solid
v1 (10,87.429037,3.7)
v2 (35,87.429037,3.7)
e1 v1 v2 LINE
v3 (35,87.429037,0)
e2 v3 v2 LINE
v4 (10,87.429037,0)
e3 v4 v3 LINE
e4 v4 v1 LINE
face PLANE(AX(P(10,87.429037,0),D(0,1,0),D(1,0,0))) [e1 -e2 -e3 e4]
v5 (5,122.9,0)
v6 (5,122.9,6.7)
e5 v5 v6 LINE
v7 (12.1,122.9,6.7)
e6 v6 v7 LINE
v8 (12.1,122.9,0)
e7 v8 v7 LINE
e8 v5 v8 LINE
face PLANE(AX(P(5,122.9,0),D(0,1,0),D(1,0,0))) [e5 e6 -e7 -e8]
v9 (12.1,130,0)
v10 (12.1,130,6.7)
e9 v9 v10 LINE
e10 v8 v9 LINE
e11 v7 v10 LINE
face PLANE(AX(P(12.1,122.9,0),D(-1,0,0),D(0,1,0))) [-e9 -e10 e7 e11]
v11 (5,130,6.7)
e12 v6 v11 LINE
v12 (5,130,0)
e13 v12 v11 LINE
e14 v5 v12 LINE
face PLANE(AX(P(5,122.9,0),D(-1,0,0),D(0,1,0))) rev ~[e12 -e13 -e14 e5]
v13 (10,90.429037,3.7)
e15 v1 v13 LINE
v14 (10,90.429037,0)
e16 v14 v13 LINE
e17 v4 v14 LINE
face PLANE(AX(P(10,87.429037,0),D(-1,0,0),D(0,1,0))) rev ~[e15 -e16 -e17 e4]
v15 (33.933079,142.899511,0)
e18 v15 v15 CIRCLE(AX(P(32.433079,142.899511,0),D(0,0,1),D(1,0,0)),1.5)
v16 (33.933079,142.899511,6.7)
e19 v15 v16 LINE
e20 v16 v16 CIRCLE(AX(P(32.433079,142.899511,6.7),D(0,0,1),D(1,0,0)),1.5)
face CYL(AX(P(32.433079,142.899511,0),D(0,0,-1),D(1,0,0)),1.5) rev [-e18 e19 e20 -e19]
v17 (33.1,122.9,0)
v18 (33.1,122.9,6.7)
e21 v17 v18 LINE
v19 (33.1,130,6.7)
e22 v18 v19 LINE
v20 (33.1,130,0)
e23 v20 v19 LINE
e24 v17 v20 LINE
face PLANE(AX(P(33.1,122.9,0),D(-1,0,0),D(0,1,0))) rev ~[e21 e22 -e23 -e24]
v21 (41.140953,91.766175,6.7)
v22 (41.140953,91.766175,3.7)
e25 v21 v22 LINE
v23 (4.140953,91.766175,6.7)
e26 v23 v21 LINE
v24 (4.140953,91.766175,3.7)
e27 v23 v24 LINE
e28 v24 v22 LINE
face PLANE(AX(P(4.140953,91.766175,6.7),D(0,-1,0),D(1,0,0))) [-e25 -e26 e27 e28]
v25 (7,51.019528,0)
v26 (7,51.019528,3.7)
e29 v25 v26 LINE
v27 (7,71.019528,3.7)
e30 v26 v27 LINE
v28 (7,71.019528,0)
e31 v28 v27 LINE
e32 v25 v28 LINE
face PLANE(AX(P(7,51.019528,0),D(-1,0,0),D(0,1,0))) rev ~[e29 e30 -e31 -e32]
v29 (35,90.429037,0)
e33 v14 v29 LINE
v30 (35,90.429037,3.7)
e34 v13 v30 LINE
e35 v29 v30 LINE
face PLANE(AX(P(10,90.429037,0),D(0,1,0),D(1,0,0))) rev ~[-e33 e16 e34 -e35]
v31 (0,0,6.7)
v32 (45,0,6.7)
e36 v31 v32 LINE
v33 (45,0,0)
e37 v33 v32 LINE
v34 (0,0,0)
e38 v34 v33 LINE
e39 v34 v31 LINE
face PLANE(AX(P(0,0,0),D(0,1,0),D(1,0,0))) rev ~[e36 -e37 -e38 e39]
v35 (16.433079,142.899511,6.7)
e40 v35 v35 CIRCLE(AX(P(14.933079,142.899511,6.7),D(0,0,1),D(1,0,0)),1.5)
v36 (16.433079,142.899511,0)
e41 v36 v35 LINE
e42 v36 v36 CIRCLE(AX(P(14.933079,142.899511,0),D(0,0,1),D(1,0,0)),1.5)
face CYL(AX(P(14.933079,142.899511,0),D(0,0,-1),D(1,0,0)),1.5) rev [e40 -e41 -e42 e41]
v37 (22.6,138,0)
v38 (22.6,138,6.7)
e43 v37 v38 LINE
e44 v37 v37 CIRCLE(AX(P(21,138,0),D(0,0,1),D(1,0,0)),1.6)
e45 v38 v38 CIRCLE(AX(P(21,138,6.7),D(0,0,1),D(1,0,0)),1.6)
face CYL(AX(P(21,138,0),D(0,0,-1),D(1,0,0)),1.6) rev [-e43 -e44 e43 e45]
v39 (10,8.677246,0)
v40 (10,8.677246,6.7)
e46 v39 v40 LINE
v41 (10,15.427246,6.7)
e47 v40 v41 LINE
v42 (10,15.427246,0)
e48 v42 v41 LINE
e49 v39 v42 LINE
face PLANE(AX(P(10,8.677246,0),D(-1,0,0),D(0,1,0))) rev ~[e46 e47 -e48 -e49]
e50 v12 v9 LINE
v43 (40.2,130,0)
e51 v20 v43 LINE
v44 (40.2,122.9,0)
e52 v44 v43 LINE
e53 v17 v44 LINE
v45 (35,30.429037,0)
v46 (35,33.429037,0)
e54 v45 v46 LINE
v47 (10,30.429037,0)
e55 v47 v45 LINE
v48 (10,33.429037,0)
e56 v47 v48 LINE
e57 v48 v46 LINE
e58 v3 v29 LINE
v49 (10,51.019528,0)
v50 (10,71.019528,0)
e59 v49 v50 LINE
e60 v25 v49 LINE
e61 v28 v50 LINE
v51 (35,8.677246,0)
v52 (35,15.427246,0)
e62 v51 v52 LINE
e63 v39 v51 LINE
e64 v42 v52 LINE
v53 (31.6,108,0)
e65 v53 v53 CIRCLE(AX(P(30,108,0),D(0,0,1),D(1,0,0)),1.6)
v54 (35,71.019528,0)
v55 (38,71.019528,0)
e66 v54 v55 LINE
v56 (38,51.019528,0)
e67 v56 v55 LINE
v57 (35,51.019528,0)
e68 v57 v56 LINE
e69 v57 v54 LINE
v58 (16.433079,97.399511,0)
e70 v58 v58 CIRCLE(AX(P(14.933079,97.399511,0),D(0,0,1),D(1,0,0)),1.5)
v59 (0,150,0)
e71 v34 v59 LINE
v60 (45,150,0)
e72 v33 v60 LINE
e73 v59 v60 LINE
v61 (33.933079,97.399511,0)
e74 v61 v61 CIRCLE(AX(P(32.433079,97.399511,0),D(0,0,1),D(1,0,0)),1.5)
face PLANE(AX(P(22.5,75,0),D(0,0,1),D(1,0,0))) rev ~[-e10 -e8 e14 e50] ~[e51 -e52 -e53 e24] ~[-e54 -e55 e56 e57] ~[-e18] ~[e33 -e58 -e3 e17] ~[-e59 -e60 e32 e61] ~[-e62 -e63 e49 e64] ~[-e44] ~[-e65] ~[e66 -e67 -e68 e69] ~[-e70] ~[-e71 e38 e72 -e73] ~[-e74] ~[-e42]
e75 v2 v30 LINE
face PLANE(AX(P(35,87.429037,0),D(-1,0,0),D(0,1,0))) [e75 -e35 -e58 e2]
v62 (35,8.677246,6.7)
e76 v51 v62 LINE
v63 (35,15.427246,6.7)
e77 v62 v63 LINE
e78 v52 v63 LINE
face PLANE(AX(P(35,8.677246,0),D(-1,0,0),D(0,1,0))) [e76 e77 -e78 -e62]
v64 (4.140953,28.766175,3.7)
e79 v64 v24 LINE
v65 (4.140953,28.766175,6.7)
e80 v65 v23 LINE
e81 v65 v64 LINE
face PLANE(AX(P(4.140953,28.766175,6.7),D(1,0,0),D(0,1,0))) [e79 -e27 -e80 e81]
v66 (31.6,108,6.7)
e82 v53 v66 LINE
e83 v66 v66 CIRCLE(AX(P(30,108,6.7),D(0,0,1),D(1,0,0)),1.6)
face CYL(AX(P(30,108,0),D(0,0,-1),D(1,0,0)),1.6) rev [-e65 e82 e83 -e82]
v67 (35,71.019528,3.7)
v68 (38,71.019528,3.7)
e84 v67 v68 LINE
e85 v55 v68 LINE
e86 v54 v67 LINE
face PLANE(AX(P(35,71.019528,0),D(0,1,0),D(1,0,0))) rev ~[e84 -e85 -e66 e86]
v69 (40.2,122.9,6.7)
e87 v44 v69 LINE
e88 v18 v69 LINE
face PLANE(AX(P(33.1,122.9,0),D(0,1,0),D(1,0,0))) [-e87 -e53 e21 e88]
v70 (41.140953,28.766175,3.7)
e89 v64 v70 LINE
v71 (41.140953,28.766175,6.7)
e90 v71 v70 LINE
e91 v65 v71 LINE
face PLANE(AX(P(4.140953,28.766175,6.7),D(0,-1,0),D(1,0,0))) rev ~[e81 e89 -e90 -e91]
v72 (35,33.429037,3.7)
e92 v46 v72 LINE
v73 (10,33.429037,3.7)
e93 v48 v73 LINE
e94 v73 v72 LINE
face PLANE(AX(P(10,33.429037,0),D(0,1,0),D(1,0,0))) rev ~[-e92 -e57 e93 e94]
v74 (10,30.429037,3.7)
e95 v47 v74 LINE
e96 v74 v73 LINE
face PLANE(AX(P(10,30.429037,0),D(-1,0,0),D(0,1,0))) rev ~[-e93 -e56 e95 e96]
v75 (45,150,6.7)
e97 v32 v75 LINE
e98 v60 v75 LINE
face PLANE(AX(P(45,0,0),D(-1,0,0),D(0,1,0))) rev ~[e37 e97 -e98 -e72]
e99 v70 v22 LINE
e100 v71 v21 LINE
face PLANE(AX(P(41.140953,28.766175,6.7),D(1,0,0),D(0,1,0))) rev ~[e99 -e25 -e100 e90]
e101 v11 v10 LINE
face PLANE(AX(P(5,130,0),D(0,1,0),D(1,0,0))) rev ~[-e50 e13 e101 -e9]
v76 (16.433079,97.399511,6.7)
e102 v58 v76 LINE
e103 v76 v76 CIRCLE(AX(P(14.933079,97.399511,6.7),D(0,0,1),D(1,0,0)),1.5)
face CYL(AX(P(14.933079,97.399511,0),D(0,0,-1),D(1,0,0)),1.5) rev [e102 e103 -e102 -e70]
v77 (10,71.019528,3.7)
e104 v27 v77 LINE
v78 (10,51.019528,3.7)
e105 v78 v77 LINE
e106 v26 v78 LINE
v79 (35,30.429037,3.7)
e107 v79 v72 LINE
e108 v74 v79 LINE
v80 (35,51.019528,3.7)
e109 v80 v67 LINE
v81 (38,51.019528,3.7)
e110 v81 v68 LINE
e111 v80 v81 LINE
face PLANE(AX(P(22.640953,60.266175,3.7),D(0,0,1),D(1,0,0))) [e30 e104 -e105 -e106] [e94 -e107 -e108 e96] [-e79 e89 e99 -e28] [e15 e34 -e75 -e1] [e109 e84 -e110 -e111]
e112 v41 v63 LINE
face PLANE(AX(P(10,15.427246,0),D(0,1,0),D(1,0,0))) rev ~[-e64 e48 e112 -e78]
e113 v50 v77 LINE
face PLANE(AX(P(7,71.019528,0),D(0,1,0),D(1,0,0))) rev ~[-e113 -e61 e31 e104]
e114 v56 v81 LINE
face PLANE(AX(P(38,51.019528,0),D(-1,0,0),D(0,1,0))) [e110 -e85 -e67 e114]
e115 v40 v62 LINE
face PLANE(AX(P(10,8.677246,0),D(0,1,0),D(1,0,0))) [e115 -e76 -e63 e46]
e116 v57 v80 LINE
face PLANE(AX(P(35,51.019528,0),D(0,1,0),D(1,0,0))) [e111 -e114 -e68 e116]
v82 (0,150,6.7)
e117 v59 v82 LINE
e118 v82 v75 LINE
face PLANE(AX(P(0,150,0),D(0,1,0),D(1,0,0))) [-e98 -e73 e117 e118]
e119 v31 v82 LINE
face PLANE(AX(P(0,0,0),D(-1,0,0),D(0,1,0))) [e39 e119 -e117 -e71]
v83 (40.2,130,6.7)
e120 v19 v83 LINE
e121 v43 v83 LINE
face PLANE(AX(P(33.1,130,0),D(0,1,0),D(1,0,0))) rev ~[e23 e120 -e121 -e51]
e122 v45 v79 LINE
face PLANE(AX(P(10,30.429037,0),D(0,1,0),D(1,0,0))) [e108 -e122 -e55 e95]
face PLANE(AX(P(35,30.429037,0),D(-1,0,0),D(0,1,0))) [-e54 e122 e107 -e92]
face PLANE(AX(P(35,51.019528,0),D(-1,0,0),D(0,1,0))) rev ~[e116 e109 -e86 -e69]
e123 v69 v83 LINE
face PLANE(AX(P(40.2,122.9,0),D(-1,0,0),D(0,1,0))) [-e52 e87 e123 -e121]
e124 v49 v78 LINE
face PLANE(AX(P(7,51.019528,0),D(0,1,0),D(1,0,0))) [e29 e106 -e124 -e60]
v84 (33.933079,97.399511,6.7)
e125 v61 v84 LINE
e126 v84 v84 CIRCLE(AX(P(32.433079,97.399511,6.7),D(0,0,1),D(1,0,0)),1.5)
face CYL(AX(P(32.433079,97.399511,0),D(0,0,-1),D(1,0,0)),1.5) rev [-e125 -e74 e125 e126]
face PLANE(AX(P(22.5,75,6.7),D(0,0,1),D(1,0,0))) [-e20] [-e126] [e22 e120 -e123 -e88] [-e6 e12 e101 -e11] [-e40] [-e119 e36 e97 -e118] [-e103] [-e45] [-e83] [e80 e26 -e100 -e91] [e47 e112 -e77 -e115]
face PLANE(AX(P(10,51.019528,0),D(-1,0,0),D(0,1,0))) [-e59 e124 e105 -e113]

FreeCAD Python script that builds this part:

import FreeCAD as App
import Part
import Sketcher

doc = App.newDocument("Part")
body = doc.addObject("PartDesign::Body", "Body")

sketch1 = doc.addObject("Sketcher::SketchObject", "Sketch")
body.addObject(sketch1)
sketch1.AttachmentSupport = (doc.XY_Plane, [""])
sketch1.MapMode = "FlatFace"
sketch1.addGeometry([
    Part.LineSegment(App.Vector(0, 150, 0), App.Vector(0, 0, 0)),
    Part.LineSegment(App.Vector(0, 0, 0), App.Vector(45, 0, 0)),
    Part.LineSegment(App.Vector(45, 0, 0), App.Vector(45, 150, 0)),
    Part.LineSegment(App.Vector(45, 150, 0), App.Vector(0, 150, 0)),
    Part.LineSegment(App.Vector(35, 8.677246, 0), App.Vector(10, 8.677246, 0)),
    Part.LineSegment(App.Vector(10, 8.677246, 0), App.Vector(10, 15.427246, 0)),
    Part.LineSegment(App.Vector(10, 15.427246, 0), App.Vector(35, 15.427246, 0)),
    Part.LineSegment(App.Vector(35, 15.427246, 0), App.Vector(35, 8.677246, 0)),
    Part.LineSegment(App.Vector(35, 30.429037, 0), App.Vector(10, 30.429037, 0)),
    Part.LineSegment(App.Vector(10, 30.429037, 0), App.Vector(10, 33.429037, 0)),
    Part.LineSegment(App.Vector(10, 33.429037, 0), App.Vector(35, 33.429037, 0)),
    Part.LineSegment(App.Vector(35, 33.429037, 0), App.Vector(35, 30.429037, 0)),
    Part.LineSegment(App.Vector(10, 51.019528, 0), App.Vector(7, 51.019528, 0)),
    Part.LineSegment(App.Vector(7, 51.019528, 0), App.Vector(7, 71.019528, 0)),
    Part.LineSegment(App.Vector(7, 71.019528, 0), App.Vector(10, 71.019528, 0)),
    Part.LineSegment(App.Vector(10, 71.019528, 0), App.Vector(10, 51.019528, 0)),
    Part.LineSegment(App.Vector(38, 51.019528, 0), App.Vector(35, 51.019528, 0)),
    Part.LineSegment(App.Vector(35, 51.019528, 0), App.Vector(35, 71.019528, 0)),
    Part.LineSegment(App.Vector(35, 71.019528, 0), App.Vector(38, 71.019528, 0)),
    Part.LineSegment(App.Vector(38, 71.019528, 0), App.Vector(38, 51.019528, 0)),
    Part.LineSegment(App.Vector(35, 87.429037, 0), App.Vector(10, 87.429037, 0)),
    Part.LineSegment(App.Vector(10, 87.429037, 0), App.Vector(10, 90.429037, 0)),
    Part.LineSegment(App.Vector(10, 90.429037, 0), App.Vector(35, 90.429037, 0)),
    Part.LineSegment(App.Vector(35, 90.429037, 0), App.Vector(35, 87.429037, 0)),
    Part.Circle(App.Vector(14.933079, 97.399511, 0), App.Vector(0, 0, 1), 1.5),
    Part.LineSegment(App.Vector(12.1, 122.9, 0), App.Vector(5, 122.9, 0)),
    Part.LineSegment(App.Vector(5, 122.9, 0), App.Vector(5, 130, 0)),
    Part.LineSegment(App.Vector(5, 130, 0), App.Vector(12.1, 130, 0)),
    Part.LineSegment(App.Vector(12.1, 130, 0), App.Vector(12.1, 122.9, 0)),
    Part.Circle(App.Vector(14.933079, 142.899511, 0), App.Vector(0, 0, 1), 1.5),
    Part.Circle(App.Vector(21, 138, 0), App.Vector(0, 0, 1), 1.6),
    Part.Circle(App.Vector(30, 108, 0), App.Vector(0, 0, 1), 1.6),
    Part.Circle(App.Vector(32.433079, 97.399511, 0), App.Vector(0, 0, 1), 1.5),
    Part.LineSegment(App.Vector(40.2, 122.9, 0), App.Vector(33.1, 122.9, 0)),
    Part.LineSegment(App.Vector(33.1, 122.9, 0), App.Vector(33.1, 130, 0)),
    Part.LineSegment(App.Vector(33.1, 130, 0), App.Vector(40.2, 130, 0)),
    Part.LineSegment(App.Vector(40.2, 130, 0), App.Vector(40.2, 122.9, 0)),
    Part.Circle(App.Vector(32.433079, 142.899511, 0), App.Vector(0, 0, 1), 1.5),
], False)
sketch1.addConstraint([
    Sketcher.Constraint("Coincident", 0, 2, 1, 1),
    Sketcher.Constraint("Coincident", 1, 2, 2, 1),
    Sketcher.Constraint("Coincident", 2, 2, 3, 1),
    Sketcher.Constraint("Coincident", 3, 2, 0, 1),
    Sketcher.Constraint("Coincident", 4, 2, 5, 1),
    Sketcher.Constraint("Coincident", 5, 2, 6, 1),
    Sketcher.Constraint("Coincident", 6, 2, 7, 1),
    Sketcher.Constraint("Coincident", 7, 2, 4, 1),
    Sketcher.Constraint("Coincident", 8, 2, 9, 1),
    Sketcher.Constraint("Coincident", 9, 2, 10, 1),
    Sketcher.Constraint("Coincident", 10, 2, 11, 1),
    Sketcher.Constraint("Coincident", 11, 2, 8, 1),
    Sketcher.Constraint("Coincident", 12, 2, 13, 1),
    Sketcher.Constraint("Coincident", 13, 2, 14, 1),
    Sketcher.Constraint("Coincident", 14, 2, 15, 1),
    Sketcher.Constraint("Coincident", 15, 2, 12, 1),
    Sketcher.Constraint("Coincident", 16, 2, 17, 1),
    Sketcher.Constraint("Coincident", 17, 2, 18, 1),
    Sketcher.Constraint("Coincident", 18, 2, 19, 1),
    Sketcher.Constraint("Coincident", 19, 2, 16, 1),
    Sketcher.Constraint("Coincident", 20, 2, 21, 1),
    Sketcher.Constraint("Coincident", 21, 2, 22, 1),
    Sketcher.Constraint("Coincident", 22, 2, 23, 1),
    Sketcher.Constraint("Coincident", 23, 2, 20, 1),
    Sketcher.Constraint("Coincident", 25, 2, 26, 1),
    Sketcher.Constraint("Coincident", 26, 2, 27, 1),
    Sketcher.Constraint("Coincident", 27, 2, 28, 1),
    Sketcher.Constraint("Coincident", 28, 2, 25, 1),
    Sketcher.Constraint("Coincident", 33, 2, 34, 1),
    Sketcher.Constraint("Coincident", 34, 2, 35, 1),
    Sketcher.Constraint("Coincident", 35, 2, 36, 1),
    Sketcher.Constraint("Coincident", 36, 2, 33, 1),
    Sketcher.Constraint("Vertical", 0),
    Sketcher.Constraint("Horizontal", 1),
    Sketcher.Constraint("Vertical", 2),
    Sketcher.Constraint("Horizontal", 3),
    Sketcher.Constraint("Horizontal", 4),
    Sketcher.Constraint("Vertical", 5),
    Sketcher.Constraint("Horizontal", 6),
    Sketcher.Constraint("Vertical", 7),
    Sketcher.Constraint("Horizontal", 8),
    Sketcher.Constraint("Vertical", 9),
    Sketcher.Constraint("Horizontal", 10),
    Sketcher.Constraint("Vertical", 11),
    Sketcher.Constraint("Horizontal", 12),
    Sketcher.Constraint("Vertical", 13),
    Sketcher.Constraint("Horizontal", 14),
    Sketcher.Constraint("Vertical", 15),
    Sketcher.Constraint("Horizontal", 16),
    Sketcher.Constraint("Vertical", 17),
    Sketcher.Constraint("Horizontal", 18),
    Sketcher.Constraint("Vertical", 19),
    Sketcher.Constraint("Horizontal", 20),
    Sketcher.Constraint("Vertical", 21),
    Sketcher.Constraint("Horizontal", 22),
    Sketcher.Constraint("Vertical", 23),
    Sketcher.Constraint("Horizontal", 25),
    Sketcher.Constraint("Vertical", 26),
    Sketcher.Constraint("Horizontal", 27),
    Sketcher.Constraint("Vertical", 28),
    Sketcher.Constraint("Horizontal", 33),
    Sketcher.Constraint("Vertical", 34),
    Sketcher.Constraint("Horizontal", 35),
    Sketcher.Constraint("Vertical", 36),
    Sketcher.Constraint("Coincident", 0, 2, -1, 1),
    Sketcher.Constraint("Equal", 24, 29),
    Sketcher.Constraint("Equal", 30, 31),
    Sketcher.Constraint("Equal", 29, 32),
    Sketcher.Constraint("Equal", 32, 37),
    Sketcher.Constraint("Horizontal", 24, 3, 32, 3),
    Sketcher.Constraint("Horizontal", 29, 3, 37, 3),
    Sketcher.Constraint("Horizontal", 15, 2, 16, 2),
    Sketcher.Constraint("Horizontal", 14, 2, 17, 2),
    Sketcher.Constraint("Horizontal", 28, 2, 33, 2),
    Sketcher.Constraint("Horizontal", 27, 2, 34, 2),
    Sketcher.Constraint("Vertical", 24, 3, 29, 3),
    Sketcher.Constraint("Vertical", 32, 3, 37, 3),
    Sketcher.Constraint("Vertical", 5, 2, 8, 2),
    Sketcher.Constraint("Vertical", 7, 2, 10, 2),
    Sketcher.Constraint("Vertical", 9, 2, 14, 2),
    Sketcher.Constraint("Vertical", 11, 2, 16, 2),
    Sketcher.Constraint("Vertical", 15, 2, 20, 2),
    Sketcher.Constraint("Vertical", 17, 2, 22, 2),
    Sketcher.Constraint("Equal", 14, 16),
    Sketcher.Constraint("Equal", 27, 33),
    Sketcher.Constraint("Equal", 18, 9),
    Sketcher.Constraint("Equal", 11, 21),
    Sketcher.Constraint("Equal", 35, 26),
    Sketcher.Constraint("Diameter", 24, 3.0),
    Sketcher.Constraint("Diameter", 30, 3.2),
    Sketcher.Constraint("DistanceX", 1, 1, 1, 2, 45.0),
    Sketcher.Constraint("DistanceX", 4, 2, 4, 1, 25.0),
    Sketcher.Constraint("DistanceX", 12, 2, 12, 1, 3.0),
    Sketcher.Constraint("DistanceY", 0, 2, 0, 1, 150.0),
    Sketcher.Constraint("DistanceY", 13, 1, 13, 2, 20.0),
    Sketcher.Constraint("DistanceX", 25, 2, 25, 1, 7.1),
    Sketcher.Constraint("DistanceX", -1, 1, 30, 3, 21.0),
    Sketcher.Constraint("DistanceY", -1, 1, 30, 3, 138.0),
    Sketcher.Constraint("DistanceX", -1, 1, 31, 3, 30.0),
    Sketcher.Constraint("DistanceY", -1, 1, 31, 3, 108.0),
    Sketcher.Constraint("DistanceX", -1, 1, 4, 2, 10.0),
    Sketcher.Constraint("DistanceX", -1, 1, 25, 2, 5.0),
    Sketcher.Constraint("DistanceY", -1, 1, 26, 2, 130.0),
    Sketcher.Constraint("DistanceX", 28, 2, 33, 2, 21.0),
    Sketcher.Constraint("DistanceY", 5, 1, 5, 2, 6.75),
    Sketcher.Constraint("DistanceY", 24, 3, 29, 3, 45.5),
    Sketcher.Constraint("DistanceX", 24, 3, 32, 3, 17.5),
    Sketcher.Constraint("DistanceX", -1, 1, 24, 3, 14.933079),
    Sketcher.Constraint("DistanceY", -1, 1, 24, 3, 97.399511),
    Sketcher.Constraint("DistanceY", 5, 2, 8, 2, 15.001791),
    Sketcher.Constraint("DistanceY", 9, 2, 12, 2, 17.590491),
    Sketcher.Constraint("DistanceY", 14, 2, 20, 2, 16.409509),
    Sketcher.Constraint("DistanceY", -1, 1, 4, 2, 8.677246),
])
pad1 = doc.addObject("PartDesign::Pad", "Pad")
body.addObject(pad1)
pad1.Profile = sketch1
pad1.Length = 6.7

sketch2 = doc.addObject("Sketcher::SketchObject", "Sketch001")
body.addObject(sketch2)
sketch2.AttachmentSupport = (doc.XY_Plane, [""])
sketch2.MapMode = "FlatFace"
sketch2.AttachmentOffset = App.Placement(App.Vector(0, 0, 6.7), App.Rotation())
sketch2.addGeometry([
    Part.LineSegment(App.Vector(4.140953, 91.766175, 0), App.Vector(4.140953, 28.766175, 0)),
    Part.LineSegment(App.Vector(4.140953, 28.766175, 0), App.Vector(41.140953, 28.766175, 0)),
    Part.LineSegment(App.Vector(41.140953, 28.766175, 0), App.Vector(41.140953, 91.766175, 0)),
    Part.LineSegment(App.Vector(41.140953, 91.766175, 0), App.Vector(4.140953, 91.766175, 0)),
], False)
sketch2.addConstraint([
    Sketcher.Constraint("Coincident", 0, 2, 1, 1),
    Sketcher.Constraint("Coincident", 1, 2, 2, 1),
    Sketcher.Constraint("Coincident", 2, 2, 3, 1),
    Sketcher.Constraint("Coincident", 3, 2, 0, 1),
    Sketcher.Constraint("Vertical", 0),
    Sketcher.Constraint("Horizontal", 1),
    Sketcher.Constraint("Vertical", 2),
    Sketcher.Constraint("Horizontal", 3),
    Sketcher.Constraint("DistanceX", 1, 1, 1, 2, 37.0),
    Sketcher.Constraint("DistanceY", 0, 2, 0, 1, 63.0),
    Sketcher.Constraint("DistanceX", -1, 1, 0, 2, 4.140953),
    Sketcher.Constraint("DistanceY", -1, 1, 0, 2, 28.766175),
])
pocket1 = doc.addObject("PartDesign::Pocket", "Pocket")
body.addObject(pocket1)
pocket1.Profile = sketch2
pocket1.Length = 3

doc.recompute()
